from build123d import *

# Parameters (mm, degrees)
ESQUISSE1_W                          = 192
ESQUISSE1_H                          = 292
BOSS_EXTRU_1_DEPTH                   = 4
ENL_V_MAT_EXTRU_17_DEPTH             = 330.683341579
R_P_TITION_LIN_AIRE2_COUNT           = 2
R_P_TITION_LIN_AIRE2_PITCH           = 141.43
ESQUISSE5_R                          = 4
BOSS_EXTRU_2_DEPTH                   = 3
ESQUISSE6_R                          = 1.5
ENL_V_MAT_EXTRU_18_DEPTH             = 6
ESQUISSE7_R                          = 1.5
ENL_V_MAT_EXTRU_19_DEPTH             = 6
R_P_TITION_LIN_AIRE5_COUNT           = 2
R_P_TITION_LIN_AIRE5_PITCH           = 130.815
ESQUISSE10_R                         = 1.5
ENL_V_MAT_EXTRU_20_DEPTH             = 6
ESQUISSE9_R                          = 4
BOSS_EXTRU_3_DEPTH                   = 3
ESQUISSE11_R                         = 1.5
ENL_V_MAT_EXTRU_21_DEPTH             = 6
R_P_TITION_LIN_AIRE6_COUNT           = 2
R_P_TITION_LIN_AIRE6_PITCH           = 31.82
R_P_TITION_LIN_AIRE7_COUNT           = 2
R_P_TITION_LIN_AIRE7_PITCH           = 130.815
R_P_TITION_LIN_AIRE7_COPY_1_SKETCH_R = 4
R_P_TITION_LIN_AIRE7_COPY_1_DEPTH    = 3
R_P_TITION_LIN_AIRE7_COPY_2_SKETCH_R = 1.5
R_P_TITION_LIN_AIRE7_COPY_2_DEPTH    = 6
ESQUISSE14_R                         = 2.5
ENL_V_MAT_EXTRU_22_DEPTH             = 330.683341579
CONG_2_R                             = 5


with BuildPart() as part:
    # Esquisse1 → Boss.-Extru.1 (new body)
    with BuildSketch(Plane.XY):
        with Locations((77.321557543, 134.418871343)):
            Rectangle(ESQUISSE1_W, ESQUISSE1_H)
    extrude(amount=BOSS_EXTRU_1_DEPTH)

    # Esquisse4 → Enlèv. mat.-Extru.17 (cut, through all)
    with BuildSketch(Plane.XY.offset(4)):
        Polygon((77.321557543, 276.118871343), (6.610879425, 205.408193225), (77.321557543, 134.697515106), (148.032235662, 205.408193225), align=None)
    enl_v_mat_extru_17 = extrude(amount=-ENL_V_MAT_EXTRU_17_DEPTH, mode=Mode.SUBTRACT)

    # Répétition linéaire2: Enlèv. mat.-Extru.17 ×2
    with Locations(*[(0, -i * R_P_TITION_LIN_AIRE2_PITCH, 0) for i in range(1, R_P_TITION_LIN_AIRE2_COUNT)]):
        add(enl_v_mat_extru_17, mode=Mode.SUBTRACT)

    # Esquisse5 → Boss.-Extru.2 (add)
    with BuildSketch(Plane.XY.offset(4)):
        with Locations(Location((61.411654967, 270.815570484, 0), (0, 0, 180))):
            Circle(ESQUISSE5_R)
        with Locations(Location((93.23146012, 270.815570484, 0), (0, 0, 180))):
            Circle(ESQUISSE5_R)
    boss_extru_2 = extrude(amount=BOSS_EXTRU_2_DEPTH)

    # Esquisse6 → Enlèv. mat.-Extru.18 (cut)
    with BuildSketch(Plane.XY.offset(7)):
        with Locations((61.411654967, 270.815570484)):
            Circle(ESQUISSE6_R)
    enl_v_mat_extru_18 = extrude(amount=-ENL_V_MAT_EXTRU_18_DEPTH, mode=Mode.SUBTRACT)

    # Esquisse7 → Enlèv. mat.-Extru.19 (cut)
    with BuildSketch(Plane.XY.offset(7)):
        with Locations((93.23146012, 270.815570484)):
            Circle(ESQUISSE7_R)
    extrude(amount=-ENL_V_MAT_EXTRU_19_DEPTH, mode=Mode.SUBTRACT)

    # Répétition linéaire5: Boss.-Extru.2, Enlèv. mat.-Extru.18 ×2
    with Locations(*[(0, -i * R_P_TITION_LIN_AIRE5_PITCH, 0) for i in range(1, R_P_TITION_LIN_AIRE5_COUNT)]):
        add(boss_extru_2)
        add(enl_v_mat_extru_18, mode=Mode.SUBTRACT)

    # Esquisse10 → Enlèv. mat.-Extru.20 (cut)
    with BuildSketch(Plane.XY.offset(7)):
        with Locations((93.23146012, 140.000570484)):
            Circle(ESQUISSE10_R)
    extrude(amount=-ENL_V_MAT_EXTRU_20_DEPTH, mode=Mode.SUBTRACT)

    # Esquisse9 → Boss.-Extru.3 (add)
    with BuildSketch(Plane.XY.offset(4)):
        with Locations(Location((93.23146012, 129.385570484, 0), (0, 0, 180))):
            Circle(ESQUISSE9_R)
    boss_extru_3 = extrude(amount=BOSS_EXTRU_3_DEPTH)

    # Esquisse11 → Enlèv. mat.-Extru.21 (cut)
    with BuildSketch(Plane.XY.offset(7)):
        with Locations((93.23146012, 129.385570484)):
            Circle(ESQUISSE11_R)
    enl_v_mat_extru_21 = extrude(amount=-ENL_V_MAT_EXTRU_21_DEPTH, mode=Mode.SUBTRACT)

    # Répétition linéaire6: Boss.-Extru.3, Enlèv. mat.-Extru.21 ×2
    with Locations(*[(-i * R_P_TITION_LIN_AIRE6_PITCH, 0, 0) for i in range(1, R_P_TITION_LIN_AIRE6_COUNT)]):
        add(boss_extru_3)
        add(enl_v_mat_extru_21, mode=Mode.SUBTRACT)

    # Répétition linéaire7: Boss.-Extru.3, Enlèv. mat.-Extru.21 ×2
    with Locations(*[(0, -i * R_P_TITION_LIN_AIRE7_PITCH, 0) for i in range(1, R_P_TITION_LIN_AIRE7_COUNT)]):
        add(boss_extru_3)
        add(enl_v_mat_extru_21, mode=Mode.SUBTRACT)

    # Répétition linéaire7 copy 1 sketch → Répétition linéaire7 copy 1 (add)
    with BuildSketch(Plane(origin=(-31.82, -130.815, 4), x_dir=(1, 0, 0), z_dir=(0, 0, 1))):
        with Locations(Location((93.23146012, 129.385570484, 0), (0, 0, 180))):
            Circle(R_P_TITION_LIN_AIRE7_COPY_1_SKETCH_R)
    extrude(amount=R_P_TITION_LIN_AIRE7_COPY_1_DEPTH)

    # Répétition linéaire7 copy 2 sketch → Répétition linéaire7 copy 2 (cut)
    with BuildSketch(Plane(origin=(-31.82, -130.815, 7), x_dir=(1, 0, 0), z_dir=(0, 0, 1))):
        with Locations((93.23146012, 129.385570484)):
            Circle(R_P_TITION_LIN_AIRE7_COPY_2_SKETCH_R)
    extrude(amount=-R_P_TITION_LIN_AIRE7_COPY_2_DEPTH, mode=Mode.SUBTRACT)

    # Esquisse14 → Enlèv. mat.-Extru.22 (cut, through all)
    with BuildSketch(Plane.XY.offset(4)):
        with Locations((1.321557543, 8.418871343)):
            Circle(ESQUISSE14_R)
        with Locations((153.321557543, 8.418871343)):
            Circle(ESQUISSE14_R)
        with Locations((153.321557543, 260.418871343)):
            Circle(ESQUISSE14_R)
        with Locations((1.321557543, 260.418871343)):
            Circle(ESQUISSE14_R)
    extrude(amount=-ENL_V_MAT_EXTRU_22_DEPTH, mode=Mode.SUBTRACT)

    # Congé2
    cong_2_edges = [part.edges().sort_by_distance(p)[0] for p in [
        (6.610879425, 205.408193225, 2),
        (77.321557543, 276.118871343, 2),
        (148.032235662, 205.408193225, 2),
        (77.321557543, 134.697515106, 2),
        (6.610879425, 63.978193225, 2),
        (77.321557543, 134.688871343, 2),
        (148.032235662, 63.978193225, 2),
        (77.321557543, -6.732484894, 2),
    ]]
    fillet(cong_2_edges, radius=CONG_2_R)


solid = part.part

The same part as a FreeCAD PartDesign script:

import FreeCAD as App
import Part
import Sketcher
from FreeCAD import Vector


def edges_at(feature, points):
    """Names of the edges that pass closest to the given points."""
    edges = feature.Shape.Edges
    near = lambda p: min(range(len(edges)), key=lambda i: edges[i].distToShape(Part.Vertex(*p))[0])
    return sorted({f"Edge{near(p) + 1}" for p in points})


def add_polygon(sketch, points):
    """Adds a closed chain of lines whose ends are joined by coincident constraints."""
    first, n = sketch.GeometryCount, len(points)
    for a, b in zip(points, points[1:] + points[:1]):
        sketch.addGeometry(Part.LineSegment(App.Vector(*a, 0), App.Vector(*b, 0)), False)
    for i in range(n):
        sketch.addConstraint(Sketcher.Constraint("Coincident", first + i, 2, first + (i + 1) % n, 1))

doc = App.newDocument("Part")
body = doc.addObject("PartDesign::Body", "Body")

sketch1 = doc.addObject("Sketcher::SketchObject", "Sketch")
body.addObject(sketch1)
sketch1.AttachmentSupport = (doc.XY_Plane, [""])
sketch1.MapMode = "FlatFace"
add_polygon(sketch1, [(-19, 280), (-19, -12), (173, -12), (173, 280)])
sketch1.addConstraint([
    Sketcher.Constraint("Vertical", 0),
    Sketcher.Constraint("Horizontal", 1),
    Sketcher.Constraint("Vertical", 2),
    Sketcher.Constraint("Horizontal", 3),
    Sketcher.Constraint("DistanceX", 1, 1, 1, 2, 192.0),
    Sketcher.Constraint("DistanceY", 0, 2, 0, 1, 292.0),
    Sketcher.Constraint("DistanceY", 0, 2, -1, 1, 11.581129),
    Sketcher.Constraint("DistanceX", 0, 2, -1, 1, 18.678442),
])
pad1 = doc.addObject("PartDesign::Pad", "Pad")
body.addObject(pad1)
pad1.Profile = sketch1
pad1.Length = 4

sketch2 = doc.addObject("Sketcher::SketchObject", "Sketch001")
body.addObject(sketch2)
sketch2.AttachmentSupport = (doc.XY_Plane, [""])
sketch2.MapMode = "FlatFace"
sketch2.AttachmentOffset = App.Placement(Vector(0, 0, 4), App.Rotation())
add_polygon(sketch2, [(77, 276), (7, 205), (77, 135), (148, 205)])
sketch2.addConstraint([
    Sketcher.Constraint("Perpendicular", 0, 1),
    Sketcher.Constraint("Perpendicular", 1, 2),
    Sketcher.Constraint("Perpendicular", 2, 3),
    Sketcher.Constraint("Horizontal", 0, 2, 2, 2),
    Sketcher.Constraint("Vertical", 1, 2, 3, 2),
    Sketcher.Constraint("Distance", 0, 100.0),
    Sketcher.Constraint("DistanceX", -1, 1, 0, 2, 6.610879),
    Sketcher.Constraint("DistanceY", -1, 1, 3, 2, 276.118871),
])
pocket1 = doc.addObject("PartDesign::Pocket", "Pocket")
body.addObject(pocket1)
pocket1.Profile = sketch2
pocket1.Type = "ThroughAll"
doc.recompute()

linearpattern = doc.addObject("PartDesign::LinearPattern", "LinearPattern")
body.addObject(linearpattern)
linearpattern.Originals = [pocket1]
linearpattern.Direction = (doc.Y_Axis, [""])
linearpattern.Mode = "offset"
linearpattern.Offset = 141.43
linearpattern.Occurrences = 2
linearpattern.Reversed = True
body.Tip = linearpattern

sketch3 = doc.addObject("Sketcher::SketchObject", "Sketch002")
body.addObject(sketch3)
sketch3.AttachmentSupport = (doc.XY_Plane, [""])
sketch3.MapMode = "FlatFace"
sketch3.AttachmentOffset = App.Placement(Vector(0, 0, 4), App.Rotation())
sketch3.addGeometry([
    Part.Circle(Vector(61.4, 270.8, 0), Vector(0, 0, 1), 4),
    Part.Circle(Vector(93.2, 270.8, 0), Vector(0, 0, 1), 4),
], False)
sketch3.addConstraint([
    Sketcher.Constraint("Equal", 0, 1),
    Sketcher.Constraint("Horizontal", 0, 3, 1, 3),
    Sketcher.Constraint("Diameter", 0, 8.0),
    Sketcher.Constraint("DistanceY", -1, 1, 0, 3, 270.81557),
    Sketcher.Constraint("DistanceX", -1, 1, 1, 3, 93.23146),
    Sketcher.Constraint("DistanceX", -1, 1, 0, 3, 61.411655),
])
pad2 = doc.addObject("PartDesign::Pad", "Pad001")
body.addObject(pad2)
pad2.Profile = sketch3
pad2.Length = 3

sketch4 = doc.addObject("Sketcher::SketchObject", "Sketch003")
body.addObject(sketch4)
sketch4.AttachmentSupport = (doc.XY_Plane, [""])
sketch4.MapMode = "FlatFace"
sketch4.AttachmentOffset = App.Placement(Vector(0, 0, 7), App.Rotation())
sketch4.addGeometry(Part.Circle(Vector(61.4, 270.8, 0), Vector(0, 0, 1), 1.5), False)
sketch4.addConstraint([
    Sketcher.Constraint("Diameter", 0, 3.0),
    Sketcher.Constraint("DistanceY", -1, 1, 0, 3, 270.81557),
    Sketcher.Constraint("DistanceX", -1, 1, 0, 3, 61.411655),
])
pocket2 = doc.addObject("PartDesign::Pocket", "Pocket001")
body.addObject(pocket2)
pocket2.Profile = sketch4
pocket2.Length = 6

sketch5 = doc.addObject("Sketcher::SketchObject", "Sketch004")
body.addObject(sketch5)
sketch5.AttachmentSupport = (doc.XY_Plane, [""])
sketch5.MapMode = "FlatFace"
sketch5.AttachmentOffset = App.Placement(Vector(0, 0, 7), App.Rotation())
sketch5.addGeometry(Part.Circle(Vector(93.2, 270.8, 0), Vector(0, 0, 1), 1.5), False)
sketch5.addConstraint([
    Sketcher.Constraint("Diameter", 0, 3.0),
    Sketcher.Constraint("DistanceX", -1, 1, 0, 3, 93.23146),
    Sketcher.Constraint("DistanceY", -1, 1, 0, 3, 270.81557),
])
pocket3 = doc.addObject("PartDesign::Pocket", "Pocket002")
body.addObject(pocket3)
pocket3.Profile = sketch5
pocket3.Length = 6
doc.recompute()

linearpattern2 = doc.addObject("PartDesign::LinearPattern", "LinearPattern001")
body.addObject(linearpattern2)
linearpattern2.Originals = [pad2, pocket2]
linearpattern2.Direction = (doc.Y_Axis, [""])
linearpattern2.Mode = "offset"
linearpattern2.Offset = 130.815
linearpattern2.Occurrences = 2
linearpattern2.Reversed = True
body.Tip = linearpattern2

sketch6 = doc.addObject("Sketcher::SketchObject", "Sketch005")
body.addObject(sketch6)
sketch6.AttachmentSupport = (doc.XY_Plane, [""])
sketch6.MapMode = "FlatFace"
sketch6.AttachmentOffset = App.Placement(Vector(0, 0, 7), App.Rotation())
sketch6.addGeometry(Part.Circle(Vector(93.2, 140, 0), Vector(0, 0, 1), 1.5), False)
sketch6.addConstraint([
    Sketcher.Constraint("Diameter", 0, 3.0),
    Sketcher.Constraint("DistanceX", -1, 1, 0, 3, 93.23146),
    Sketcher.Constraint("DistanceY", -1, 1, 0, 3, 140.00057),
])
pocket4 = doc.addObject("PartDesign::Pocket", "Pocket003")
body.addObject(pocket4)
pocket4.Profile = sketch6
pocket4.Length = 6

sketch7 = doc.addObject("Sketcher::SketchObject", "Sketch006")
body.addObject(sketch7)
sketch7.AttachmentSupport = (doc.XY_Plane, [""])
sketch7.MapMode = "FlatFace"
sketch7.AttachmentOffset = App.Placement(Vector(0, 0, 4), App.Rotation())
sketch7.addGeometry(Part.Circle(Vector(93.2, 129.4, 0), Vector(0, 0, 1), 4), False)
sketch7.addConstraint([
    Sketcher.Constraint("Diameter", 0, 8.0),
    Sketcher.Constraint("DistanceX", -1, 1, 0, 3, 93.23146),
    Sketcher.Constraint("DistanceY", -1, 1, 0, 3, 129.38557),
])
pad3 = doc.addObject("PartDesign::Pad", "Pad002")
body.addObject(pad3)
pad3.Profile = sketch7
pad3.Length = 3

sketch8 = doc.addObject("Sketcher::SketchObject", "Sketch007")
body.addObject(sketch8)
sketch8.AttachmentSupport = (doc.XY_Plane, [""])
sketch8.MapMode = "FlatFace"
sketch8.AttachmentOffset = App.Placement(Vector(0, 0, 7), App.Rotation())
sketch8.addGeometry(Part.Circle(Vector(93.2, 129.4, 0), Vector(0, 0, 1), 1.5), False)
sketch8.addConstraint([
    Sketcher.Constraint("Diameter", 0, 3.0),
    Sketcher.Constraint("DistanceX", -1, 1, 0, 3, 93.23146),
    Sketcher.Constraint("DistanceY", -1, 1, 0, 3, 129.38557),
])
pocket5 = doc.addObject("PartDesign::Pocket", "Pocket004")
body.addObject(pocket5)
pocket5.Profile = sketch8
pocket5.Length = 6
doc.recompute()

linearpattern3 = doc.addObject("PartDesign::LinearPattern", "LinearPattern002")
body.addObject(linearpattern3)
linearpattern3.Originals = [pad3, pocket5]
linearpattern3.Direction = (doc.X_Axis, [""])
linearpattern3.Mode = "offset"
linearpattern3.Offset = 31.82
linearpattern3.Occurrences = 2
linearpattern3.Reversed = True
body.Tip = linearpattern3
doc.recompute()

linearpattern4 = doc.addObject("PartDesign::LinearPattern", "LinearPattern003")
body.addObject(linearpattern4)
linearpattern4.Originals = [pad3, pocket5]
linearpattern4.Direction = (doc.Y_Axis, [""])
linearpattern4.Mode = "offset"
linearpattern4.Offset = 130.815
linearpattern4.Occurrences = 2
linearpattern4.Reversed = True
body.Tip = linearpattern4

sketch9 = doc.addObject("Sketcher::SketchObject", "Sketch008")
body.addObject(sketch9)
sketch9.AttachmentSupport = (doc.XY_Plane, [""])
sketch9.MapMode = "FlatFace"
sketch9.AttachmentOffset = App.Placement(Vector(0, 0, 4), App.Rotation())
sketch9.addGeometry(Part.Circle(Vector(61.4, -1.4, 0), Vector(0, 0, 1), 4), False)
sketch9.addConstraint([
    Sketcher.Constraint("Diameter", 0, 8.0),
    Sketcher.Constraint("DistanceX", -1, 1, 0, 3, 61.41146),
    Sketcher.Constraint("DistanceY", 0, 3, -1, 1, 1.42943),
])
pad4 = doc.addObject("PartDesign::Pad", "Pad003")
body.addObject(pad4)
pad4.Profile = sketch9
pad4.Length = 3

sketch10 = doc.addObject("Sketcher::SketchObject", "Sketch009")
body.addObject(sketch10)
sketch10.AttachmentSupport = (doc.XY_Plane, [""])
sketch10.MapMode = "FlatFace"
sketch10.AttachmentOffset = App.Placement(Vector(0, 0, 7), App.Rotation())
sketch10.addGeometry(Part.Circle(Vector(61.4, -1.4, 0), Vector(0, 0, 1), 1.5), False)
sketch10.addConstraint([
    Sketcher.Constraint("Diameter", 0, 3.0),
    Sketcher.Constraint("DistanceX", -1, 1, 0, 3, 61.41146),
    Sketcher.Constraint("DistanceY", 0, 3, -1, 1, 1.42943),
])
pocket6 = doc.addObject("PartDesign::Pocket", "Pocket005")
body.addObject(pocket6)
pocket6.Profile = sketch10
pocket6.Length = 6

sketch11 = doc.addObject("Sketcher::SketchObject", "Sketch010")
body.addObject(sketch11)
sketch11.AttachmentSupport = (doc.XY_Plane, [""])
sketch11.MapMode = "FlatFace"
sketch11.AttachmentOffset = App.Placement(Vector(0, 0, 4), App.Rotation())
sketch11.addGeometry([
    Part.Circle(Vector(1.3, 8.4, 0), Vector(0, 0, 1), 2.5),
    Part.Circle(Vector(153.3, 8.4, 0), Vector(0, 0, 1), 2.5),
    Part.Circle(Vector(153.3, 260.4, 0), Vector(0, 0, 1), 2.5),
    Part.Circle(Vector(1.3, 260.4, 0), Vector(0, 0, 1), 2.5),
], False)
sketch11.addConstraint([
    Sketcher.Constraint("Equal", 0, 1),
    Sketcher.Constraint("Equal", 1, 2),
    Sketcher.Constraint("Equal", 2, 3),
    Sketcher.Constraint("Horizontal", 0, 3, 1, 3),
    Sketcher.Constraint("Horizontal", 2, 3, 3, 3),
    Sketcher.Constraint("Vertical", 1, 3, 2, 3),
    Sketcher.Constraint("Vertical", 0, 3, 3, 3),
    Sketcher.Constraint("Diameter", 0, 5.0),
    Sketcher.Constraint("DistanceX", 0, 3, 1, 3, 152.0),
    Sketcher.Constraint("DistanceY", 1, 3, 2, 3, 252.0),
    Sketcher.Constraint("DistanceY", -1, 1, 0, 3, 8.418871),
    Sketcher.Constraint("DistanceX", -1, 1, 0, 3, 1.321558),
])
pocket7 = doc.addObject("PartDesign::Pocket", "Pocket006")
body.addObject(pocket7)
pocket7.Profile = sketch11
pocket7.Type = "ThroughAll"
doc.recompute()

fillet = doc.addObject("PartDesign::Fillet", "Fillet")
body.addObject(fillet)
fillet.Base = (pocket7, edges_at(pocket7, [
    (6.611, 205.408, 2),
    (77.322, 276.119, 2),
    (148.032, 205.408, 2),
    (77.322, 134.698, 2),
    (6.611, 63.978, 2),
    (77.322, 134.689, 2),
    (148.032, 63.978, 2),
    (77.322, -6.732, 2),
]))
fillet.Radius = 5

doc.recompute()
